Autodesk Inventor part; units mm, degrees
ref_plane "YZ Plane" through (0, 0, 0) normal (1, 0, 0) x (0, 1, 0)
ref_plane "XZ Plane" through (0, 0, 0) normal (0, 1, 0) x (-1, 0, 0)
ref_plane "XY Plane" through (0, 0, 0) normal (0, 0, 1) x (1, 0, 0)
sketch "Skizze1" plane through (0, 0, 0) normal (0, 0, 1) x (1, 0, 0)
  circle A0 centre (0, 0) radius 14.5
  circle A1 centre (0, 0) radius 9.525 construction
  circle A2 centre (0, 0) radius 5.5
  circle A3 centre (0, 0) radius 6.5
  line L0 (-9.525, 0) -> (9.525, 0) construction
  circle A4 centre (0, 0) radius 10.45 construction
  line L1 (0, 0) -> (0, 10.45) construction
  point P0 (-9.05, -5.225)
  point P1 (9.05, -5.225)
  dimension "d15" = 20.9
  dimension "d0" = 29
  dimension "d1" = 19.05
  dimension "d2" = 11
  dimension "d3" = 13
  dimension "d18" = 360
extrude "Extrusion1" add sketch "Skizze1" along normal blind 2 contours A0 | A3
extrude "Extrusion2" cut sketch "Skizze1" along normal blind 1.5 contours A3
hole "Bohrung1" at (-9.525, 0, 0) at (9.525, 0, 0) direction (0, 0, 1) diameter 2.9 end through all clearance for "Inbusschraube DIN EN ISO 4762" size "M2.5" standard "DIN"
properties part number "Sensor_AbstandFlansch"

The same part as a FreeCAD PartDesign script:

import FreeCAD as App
import Part
import Sketcher

V = App.Vector

doc = App.newDocument("Part")
body = doc.addObject("PartDesign::Body", "Body")

sketch1 = body.newObject("Sketcher::SketchObject", "Sketch")
sketch1.AttachmentSupport = (doc.getObject("XY_Plane"), [""])
sketch1.MapMode = "FlatFace"
sketch1.addGeometry([
    Part.Circle(V(0, 0, 0), V(0, 0, 1), 14),
    Part.Circle(V(0, 0, 0), V(0, 0, 1), 6),
], False)
sketch1.addConstraint([
    Sketcher.Constraint("Coincident", 0, 3, -1, 1),
    Sketcher.Constraint("Coincident", 1, 3, -1, 1),
    Sketcher.Constraint("Diameter", 0, 29.0),
    Sketcher.Constraint("Diameter", 1, 11.0),
])
pad1 = body.newObject("PartDesign::Pad", "Pad")
pad1.Profile = sketch1
pad1.Length = 2

sketch2 = body.newObject("Sketcher::SketchObject", "Sketch001")
sketch2.AttachmentSupport = (doc.getObject("XY_Plane"), [""])
sketch2.MapMode = "FlatFace"
sketch2.addGeometry([
    Part.Circle(V(0, 0, 0), V(0, 0, 1), 6),
    Part.Circle(V(0, 0, 0), V(0, 0, 1), 6),
], False)
sketch2.addConstraint([
    Sketcher.Constraint("Coincident", 0, 3, -1, 1),
    Sketcher.Constraint("Coincident", 1, 3, -1, 1),
    Sketcher.Constraint("Diameter", 0, 13.0),
    Sketcher.Constraint("Diameter", 1, 11.0),
])
pocket1 = body.newObject("PartDesign::Pocket", "Pocket")
pocket1.Profile = sketch2
pocket1.Length = 1.5
pocket1.Reversed = True

sketch3 = body.newObject("Sketcher::SketchObject", "Sketch002")
sketch3.AttachmentSupport = (doc.getObject("XY_Plane"), [""])
sketch3.MapMode = "FlatFace"
sketch3.addGeometry([
    Part.Circle(V(-9.5, 0, 0), V(0, 0, 1), 1.4),
    Part.Circle(V(9.5, 0, 0), V(0, 0, 1), 1.4),
], False)
sketch3.addConstraint([
    Sketcher.Constraint("Equal", 0, 1),
    Sketcher.Constraint("Symmetric", 0, 3, 1, 3, -1, 1),
    Sketcher.Constraint("PointOnObject", 0, 3, -1),
    Sketcher.Constraint("Diameter", 0, 2.9),
    Sketcher.Constraint("DistanceX", 0, 3, 1, 3, 19.05),
])
doc.recompute()
hole = body.newObject("PartDesign::Hole", "Hole")
hole.Profile = sketch3
hole.ThreadType = "None"
hole.Diameter = 2.9
hole.DepthType = "ThroughAll"
hole.Reversed = True

doc.recompute()
